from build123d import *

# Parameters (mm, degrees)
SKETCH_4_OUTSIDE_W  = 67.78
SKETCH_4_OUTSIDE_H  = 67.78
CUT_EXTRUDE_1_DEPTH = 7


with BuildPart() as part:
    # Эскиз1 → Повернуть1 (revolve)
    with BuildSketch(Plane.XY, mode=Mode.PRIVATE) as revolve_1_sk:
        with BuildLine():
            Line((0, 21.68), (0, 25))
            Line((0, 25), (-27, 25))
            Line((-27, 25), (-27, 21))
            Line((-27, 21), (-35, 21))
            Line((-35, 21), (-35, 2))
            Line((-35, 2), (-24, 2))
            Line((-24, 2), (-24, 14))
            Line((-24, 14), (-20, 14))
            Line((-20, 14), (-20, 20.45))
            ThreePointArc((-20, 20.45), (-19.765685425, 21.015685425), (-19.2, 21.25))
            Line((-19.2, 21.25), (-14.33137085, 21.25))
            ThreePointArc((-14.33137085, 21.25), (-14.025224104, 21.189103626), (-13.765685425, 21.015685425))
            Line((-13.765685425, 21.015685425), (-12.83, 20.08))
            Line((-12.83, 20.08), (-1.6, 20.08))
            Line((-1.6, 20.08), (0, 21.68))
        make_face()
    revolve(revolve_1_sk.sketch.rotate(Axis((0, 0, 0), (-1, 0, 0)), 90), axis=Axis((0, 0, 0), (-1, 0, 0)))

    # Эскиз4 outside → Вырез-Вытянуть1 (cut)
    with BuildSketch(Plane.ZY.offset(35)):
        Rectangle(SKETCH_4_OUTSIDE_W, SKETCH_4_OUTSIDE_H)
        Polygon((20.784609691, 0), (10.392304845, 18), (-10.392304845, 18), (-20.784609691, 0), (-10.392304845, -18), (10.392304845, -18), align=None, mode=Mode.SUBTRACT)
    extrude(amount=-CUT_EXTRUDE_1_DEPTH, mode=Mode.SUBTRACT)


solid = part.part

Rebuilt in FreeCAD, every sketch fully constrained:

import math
import FreeCAD as App
import Part
import Sketcher

V = App.Vector
Q = App.Units.Quantity

doc = App.newDocument("Part")
body = doc.addObject("PartDesign::Body", "Body")

# Sketch on XY plane
sketch1 = body.newObject("Sketcher::SketchObject", "Sketch")
sketch1.AttachmentSupport = (doc.getObject("XY_Plane"), [""])
sketch1.MapMode = "FlatFace"
sketch1.addGeometry([
    Part.LineSegment(V(0, 21.68, 0), V(0, 25, 0)),  # 0
    Part.LineSegment(V(0, 25, 0), V(-27, 25, 0)),  # 1
    Part.LineSegment(V(-27, 25, 0), V(-27, 21, 0)),  # 2
    Part.LineSegment(V(-27, 21, 0), V(-35, 21, 0)),  # 3
    Part.LineSegment(V(-35, 21, 0), V(-35, 2, 0)),  # 4
    Part.LineSegment(V(-35, 2, 0), V(-24, 2, 0)),  # 5
    Part.LineSegment(V(-24, 2, 0), V(-24, 14, 0)),  # 6
    Part.LineSegment(V(-24, 14, 0), V(-20, 14, 0)),  # 7
    Part.LineSegment(V(-20, 14, 0), V(-20, 20.45, 0)),  # 8
    Part.ArcOfCircle(Part.Circle(V(-19.2, 20.45, 0), V(0, 0, 1), 0.8), math.radians(90), math.radians(180)),  # 9
    Part.LineSegment(V(-19.2, 21.25, 0), V(-14.331371, 21.25, 0)),  # 10
    Part.ArcOfCircle(Part.Circle(V(-14.331371, 20.45, 0), V(0, 0, 1), 0.8), math.radians(45), math.radians(90)),  # 11
    Part.LineSegment(V(-13.765685, 21.015685, 0), V(-12.83, 20.08, 0)),  # 12
    Part.LineSegment(V(-12.83, 20.08, 0), V(-1.6, 20.08, 0)),  # 13
    Part.LineSegment(V(-1.6, 20.08, 0), V(0, 21.68, 0)),  # 14
], False)
sketch1.addConstraint([
    Sketcher.Constraint("Coincident", 0, 2, 1, 1),
    Sketcher.Constraint("Coincident", 1, 2, 2, 1),
    Sketcher.Constraint("Coincident", 2, 2, 3, 1),
    Sketcher.Constraint("Coincident", 3, 2, 4, 1),
    Sketcher.Constraint("Coincident", 4, 2, 5, 1),
    Sketcher.Constraint("Coincident", 5, 2, 6, 1),
    Sketcher.Constraint("Coincident", 6, 2, 7, 1),
    Sketcher.Constraint("Coincident", 7, 2, 8, 1),
    Sketcher.Constraint("Tangent", 8, 2, 9, 2),
    Sketcher.Constraint("Tangent", 9, 1, 10, 1),
    Sketcher.Constraint("Tangent", 10, 2, 11, 2),
    Sketcher.Constraint("Tangent", 11, 1, 12, 1),
    Sketcher.Constraint("Coincident", 12, 2, 13, 1),
    Sketcher.Constraint("Coincident", 13, 2, 14, 1),
    Sketcher.Constraint("Coincident", 14, 2, 0, 1),
    Sketcher.Constraint("Vertical", 0),
    Sketcher.Constraint("Horizontal", 1),
    Sketcher.Constraint("Vertical", 2),
    Sketcher.Constraint("Horizontal", 3),
    Sketcher.Constraint("Vertical", 4),
    Sketcher.Constraint("Horizontal", 5),
    Sketcher.Constraint("Vertical", 6),
    Sketcher.Constraint("Horizontal", 7),
    Sketcher.Constraint("Vertical", 8),
    Sketcher.Constraint("Horizontal", 10),
    Sketcher.Constraint("Horizontal", 13),
    Sketcher.Constraint("Equal", 9, 11),
    Sketcher.Constraint("PointOnObject", 0, 2, -2),
    Sketcher.Constraint("Perpendicular", 12, 14),
    Sketcher.Constraint("Equal", 7, 2),
    Sketcher.Constraint("Radius", 9, Q("0.8 mm")),
    Sketcher.Constraint("DistanceX", 1, 2, 1, 1, Q("27 mm")),
    Sketcher.Constraint("DistanceX", 3, 2, 3, 1, Q("8 mm")),
    Sketcher.Constraint("DistanceX", 5, 1, 5, 2, Q("11 mm")),
    Sketcher.Constraint("DistanceX", 7, 1, 7, 2, Q("4 mm")),
    Sketcher.Constraint("DistanceY", 4, 2, 4, 1, Q("19 mm")),
    Sketcher.Constraint("DistanceY", 6, 1, 6, 2, Q("12 mm")),
    Sketcher.Constraint("Angle", 12, Q("-45 deg")),
    Sketcher.Constraint("DistanceY", -1, 1, 0, 2, Q("25 mm")),
    Sketcher.Constraint("DistanceX", 13, 1, 13, 2, Q("11.23 mm")),
    Sketcher.Constraint("DistanceY", 0, 1, 0, 2, Q("3.32 mm")),
    Sketcher.Constraint("DistanceY", 8, 1, 8, 2, Q("6.45 mm")),
    Sketcher.Constraint("DistanceX", 13, 2, -1, 1, Q("1.6 mm")),
])
revolution = body.newObject("PartDesign::Revolution", "Revolution")
revolution.Profile = sketch1
revolution.ReferenceAxis = (sketch1, ["H_Axis"])
revolution.Angle = 360

# Sketch on YZ plane
sketch2 = body.newObject("Sketcher::SketchObject", "Sketch001")
sketch2.AttachmentSupport = (doc.getObject("YZ_Plane"), [""])
sketch2.MapMode = "FlatFace"
sketch2.AttachmentOffset = App.Placement(V(0, 0, -35), App.Rotation())
sketch2.addGeometry([
    Part.LineSegment(V(33.89, -33.89, 0), V(-33.89, -33.89, 0)),  # 0
    Part.LineSegment(V(-33.89, -33.89, 0), V(-33.89, 33.89, 0)),  # 1
    Part.LineSegment(V(-33.89, 33.89, 0), V(33.89, 33.89, 0)),  # 2
    Part.LineSegment(V(33.89, 33.89, 0), V(33.89, -33.89, 0)),  # 3
    Part.LineSegment(V(18, 10.392305, 0), V(0, 20.78461, 0)),  # 4
    Part.LineSegment(V(0, 20.78461, 0), V(-18, 10.392305, 0)),  # 5
    Part.LineSegment(V(-18, 10.392305, 0), V(-18, -10.392305, 0)),  # 6
    Part.LineSegment(V(-18, -10.392305, 0), V(0, -20.78461, 0)),  # 7
    Part.LineSegment(V(0, -20.78461, 0), V(18, -10.392305, 0)),  # 8
    Part.LineSegment(V(18, -10.392305, 0), V(18, 10.392305, 0)),  # 9
], False)
sketch2.addConstraint([
    Sketcher.Constraint("Coincident", 0, 2, 1, 1),
    Sketcher.Constraint("Coincident", 1, 2, 2, 1),
    Sketcher.Constraint("Coincident", 2, 2, 3, 1),
    Sketcher.Constraint("Coincident", 3, 2, 0, 1),
    Sketcher.Constraint("Coincident", 4, 2, 5, 1),
    Sketcher.Constraint("Coincident", 5, 2, 6, 1),
    Sketcher.Constraint("Coincident", 6, 2, 7, 1),
    Sketcher.Constraint("Coincident", 7, 2, 8, 1),
    Sketcher.Constraint("Coincident", 8, 2, 9, 1),
    Sketcher.Constraint("Coincident", 9, 2, 4, 1),
    Sketcher.Constraint("Horizontal", 0),
    Sketcher.Constraint("Vertical", 1),
    Sketcher.Constraint("Horizontal", 2),
    Sketcher.Constraint("Vertical", 3),
    Sketcher.Constraint("Vertical", 6),
    Sketcher.Constraint("Vertical", 9),
    Sketcher.Constraint("Symmetric", 0, 2, 2, 2, -1, 1),
    Sketcher.Constraint("Symmetric", 4, 2, 7, 2, -1, 1),
    Sketcher.Constraint("Symmetric", 5, 2, 8, 2, -1, 1),
    Sketcher.Constraint("PointOnObject", 4, 2, -2),
    Sketcher.Constraint("Parallel", 4, 7),
    Sketcher.Constraint("Horizontal", 6, 2, 8, 2),
    Sketcher.Constraint("Equal", 2, 1),
    Sketcher.Constraint("Angle", 4, Q("150 deg")),
    Sketcher.Constraint("DistanceX", 5, 2, -1, 1, Q("18 mm")),
    Sketcher.Constraint("DistanceX", 0, 2, 0, 1, Q("67.78 mm")),
    Sketcher.Constraint("DistanceY", 6, 2, 6, 1, Q("20.78461 mm")),
])
pocket1 = body.newObject("PartDesign::Pocket", "Pocket")
pocket1.Profile = sketch2
pocket1.Length = 7
pocket1.Reversed = True

doc.recompute()
